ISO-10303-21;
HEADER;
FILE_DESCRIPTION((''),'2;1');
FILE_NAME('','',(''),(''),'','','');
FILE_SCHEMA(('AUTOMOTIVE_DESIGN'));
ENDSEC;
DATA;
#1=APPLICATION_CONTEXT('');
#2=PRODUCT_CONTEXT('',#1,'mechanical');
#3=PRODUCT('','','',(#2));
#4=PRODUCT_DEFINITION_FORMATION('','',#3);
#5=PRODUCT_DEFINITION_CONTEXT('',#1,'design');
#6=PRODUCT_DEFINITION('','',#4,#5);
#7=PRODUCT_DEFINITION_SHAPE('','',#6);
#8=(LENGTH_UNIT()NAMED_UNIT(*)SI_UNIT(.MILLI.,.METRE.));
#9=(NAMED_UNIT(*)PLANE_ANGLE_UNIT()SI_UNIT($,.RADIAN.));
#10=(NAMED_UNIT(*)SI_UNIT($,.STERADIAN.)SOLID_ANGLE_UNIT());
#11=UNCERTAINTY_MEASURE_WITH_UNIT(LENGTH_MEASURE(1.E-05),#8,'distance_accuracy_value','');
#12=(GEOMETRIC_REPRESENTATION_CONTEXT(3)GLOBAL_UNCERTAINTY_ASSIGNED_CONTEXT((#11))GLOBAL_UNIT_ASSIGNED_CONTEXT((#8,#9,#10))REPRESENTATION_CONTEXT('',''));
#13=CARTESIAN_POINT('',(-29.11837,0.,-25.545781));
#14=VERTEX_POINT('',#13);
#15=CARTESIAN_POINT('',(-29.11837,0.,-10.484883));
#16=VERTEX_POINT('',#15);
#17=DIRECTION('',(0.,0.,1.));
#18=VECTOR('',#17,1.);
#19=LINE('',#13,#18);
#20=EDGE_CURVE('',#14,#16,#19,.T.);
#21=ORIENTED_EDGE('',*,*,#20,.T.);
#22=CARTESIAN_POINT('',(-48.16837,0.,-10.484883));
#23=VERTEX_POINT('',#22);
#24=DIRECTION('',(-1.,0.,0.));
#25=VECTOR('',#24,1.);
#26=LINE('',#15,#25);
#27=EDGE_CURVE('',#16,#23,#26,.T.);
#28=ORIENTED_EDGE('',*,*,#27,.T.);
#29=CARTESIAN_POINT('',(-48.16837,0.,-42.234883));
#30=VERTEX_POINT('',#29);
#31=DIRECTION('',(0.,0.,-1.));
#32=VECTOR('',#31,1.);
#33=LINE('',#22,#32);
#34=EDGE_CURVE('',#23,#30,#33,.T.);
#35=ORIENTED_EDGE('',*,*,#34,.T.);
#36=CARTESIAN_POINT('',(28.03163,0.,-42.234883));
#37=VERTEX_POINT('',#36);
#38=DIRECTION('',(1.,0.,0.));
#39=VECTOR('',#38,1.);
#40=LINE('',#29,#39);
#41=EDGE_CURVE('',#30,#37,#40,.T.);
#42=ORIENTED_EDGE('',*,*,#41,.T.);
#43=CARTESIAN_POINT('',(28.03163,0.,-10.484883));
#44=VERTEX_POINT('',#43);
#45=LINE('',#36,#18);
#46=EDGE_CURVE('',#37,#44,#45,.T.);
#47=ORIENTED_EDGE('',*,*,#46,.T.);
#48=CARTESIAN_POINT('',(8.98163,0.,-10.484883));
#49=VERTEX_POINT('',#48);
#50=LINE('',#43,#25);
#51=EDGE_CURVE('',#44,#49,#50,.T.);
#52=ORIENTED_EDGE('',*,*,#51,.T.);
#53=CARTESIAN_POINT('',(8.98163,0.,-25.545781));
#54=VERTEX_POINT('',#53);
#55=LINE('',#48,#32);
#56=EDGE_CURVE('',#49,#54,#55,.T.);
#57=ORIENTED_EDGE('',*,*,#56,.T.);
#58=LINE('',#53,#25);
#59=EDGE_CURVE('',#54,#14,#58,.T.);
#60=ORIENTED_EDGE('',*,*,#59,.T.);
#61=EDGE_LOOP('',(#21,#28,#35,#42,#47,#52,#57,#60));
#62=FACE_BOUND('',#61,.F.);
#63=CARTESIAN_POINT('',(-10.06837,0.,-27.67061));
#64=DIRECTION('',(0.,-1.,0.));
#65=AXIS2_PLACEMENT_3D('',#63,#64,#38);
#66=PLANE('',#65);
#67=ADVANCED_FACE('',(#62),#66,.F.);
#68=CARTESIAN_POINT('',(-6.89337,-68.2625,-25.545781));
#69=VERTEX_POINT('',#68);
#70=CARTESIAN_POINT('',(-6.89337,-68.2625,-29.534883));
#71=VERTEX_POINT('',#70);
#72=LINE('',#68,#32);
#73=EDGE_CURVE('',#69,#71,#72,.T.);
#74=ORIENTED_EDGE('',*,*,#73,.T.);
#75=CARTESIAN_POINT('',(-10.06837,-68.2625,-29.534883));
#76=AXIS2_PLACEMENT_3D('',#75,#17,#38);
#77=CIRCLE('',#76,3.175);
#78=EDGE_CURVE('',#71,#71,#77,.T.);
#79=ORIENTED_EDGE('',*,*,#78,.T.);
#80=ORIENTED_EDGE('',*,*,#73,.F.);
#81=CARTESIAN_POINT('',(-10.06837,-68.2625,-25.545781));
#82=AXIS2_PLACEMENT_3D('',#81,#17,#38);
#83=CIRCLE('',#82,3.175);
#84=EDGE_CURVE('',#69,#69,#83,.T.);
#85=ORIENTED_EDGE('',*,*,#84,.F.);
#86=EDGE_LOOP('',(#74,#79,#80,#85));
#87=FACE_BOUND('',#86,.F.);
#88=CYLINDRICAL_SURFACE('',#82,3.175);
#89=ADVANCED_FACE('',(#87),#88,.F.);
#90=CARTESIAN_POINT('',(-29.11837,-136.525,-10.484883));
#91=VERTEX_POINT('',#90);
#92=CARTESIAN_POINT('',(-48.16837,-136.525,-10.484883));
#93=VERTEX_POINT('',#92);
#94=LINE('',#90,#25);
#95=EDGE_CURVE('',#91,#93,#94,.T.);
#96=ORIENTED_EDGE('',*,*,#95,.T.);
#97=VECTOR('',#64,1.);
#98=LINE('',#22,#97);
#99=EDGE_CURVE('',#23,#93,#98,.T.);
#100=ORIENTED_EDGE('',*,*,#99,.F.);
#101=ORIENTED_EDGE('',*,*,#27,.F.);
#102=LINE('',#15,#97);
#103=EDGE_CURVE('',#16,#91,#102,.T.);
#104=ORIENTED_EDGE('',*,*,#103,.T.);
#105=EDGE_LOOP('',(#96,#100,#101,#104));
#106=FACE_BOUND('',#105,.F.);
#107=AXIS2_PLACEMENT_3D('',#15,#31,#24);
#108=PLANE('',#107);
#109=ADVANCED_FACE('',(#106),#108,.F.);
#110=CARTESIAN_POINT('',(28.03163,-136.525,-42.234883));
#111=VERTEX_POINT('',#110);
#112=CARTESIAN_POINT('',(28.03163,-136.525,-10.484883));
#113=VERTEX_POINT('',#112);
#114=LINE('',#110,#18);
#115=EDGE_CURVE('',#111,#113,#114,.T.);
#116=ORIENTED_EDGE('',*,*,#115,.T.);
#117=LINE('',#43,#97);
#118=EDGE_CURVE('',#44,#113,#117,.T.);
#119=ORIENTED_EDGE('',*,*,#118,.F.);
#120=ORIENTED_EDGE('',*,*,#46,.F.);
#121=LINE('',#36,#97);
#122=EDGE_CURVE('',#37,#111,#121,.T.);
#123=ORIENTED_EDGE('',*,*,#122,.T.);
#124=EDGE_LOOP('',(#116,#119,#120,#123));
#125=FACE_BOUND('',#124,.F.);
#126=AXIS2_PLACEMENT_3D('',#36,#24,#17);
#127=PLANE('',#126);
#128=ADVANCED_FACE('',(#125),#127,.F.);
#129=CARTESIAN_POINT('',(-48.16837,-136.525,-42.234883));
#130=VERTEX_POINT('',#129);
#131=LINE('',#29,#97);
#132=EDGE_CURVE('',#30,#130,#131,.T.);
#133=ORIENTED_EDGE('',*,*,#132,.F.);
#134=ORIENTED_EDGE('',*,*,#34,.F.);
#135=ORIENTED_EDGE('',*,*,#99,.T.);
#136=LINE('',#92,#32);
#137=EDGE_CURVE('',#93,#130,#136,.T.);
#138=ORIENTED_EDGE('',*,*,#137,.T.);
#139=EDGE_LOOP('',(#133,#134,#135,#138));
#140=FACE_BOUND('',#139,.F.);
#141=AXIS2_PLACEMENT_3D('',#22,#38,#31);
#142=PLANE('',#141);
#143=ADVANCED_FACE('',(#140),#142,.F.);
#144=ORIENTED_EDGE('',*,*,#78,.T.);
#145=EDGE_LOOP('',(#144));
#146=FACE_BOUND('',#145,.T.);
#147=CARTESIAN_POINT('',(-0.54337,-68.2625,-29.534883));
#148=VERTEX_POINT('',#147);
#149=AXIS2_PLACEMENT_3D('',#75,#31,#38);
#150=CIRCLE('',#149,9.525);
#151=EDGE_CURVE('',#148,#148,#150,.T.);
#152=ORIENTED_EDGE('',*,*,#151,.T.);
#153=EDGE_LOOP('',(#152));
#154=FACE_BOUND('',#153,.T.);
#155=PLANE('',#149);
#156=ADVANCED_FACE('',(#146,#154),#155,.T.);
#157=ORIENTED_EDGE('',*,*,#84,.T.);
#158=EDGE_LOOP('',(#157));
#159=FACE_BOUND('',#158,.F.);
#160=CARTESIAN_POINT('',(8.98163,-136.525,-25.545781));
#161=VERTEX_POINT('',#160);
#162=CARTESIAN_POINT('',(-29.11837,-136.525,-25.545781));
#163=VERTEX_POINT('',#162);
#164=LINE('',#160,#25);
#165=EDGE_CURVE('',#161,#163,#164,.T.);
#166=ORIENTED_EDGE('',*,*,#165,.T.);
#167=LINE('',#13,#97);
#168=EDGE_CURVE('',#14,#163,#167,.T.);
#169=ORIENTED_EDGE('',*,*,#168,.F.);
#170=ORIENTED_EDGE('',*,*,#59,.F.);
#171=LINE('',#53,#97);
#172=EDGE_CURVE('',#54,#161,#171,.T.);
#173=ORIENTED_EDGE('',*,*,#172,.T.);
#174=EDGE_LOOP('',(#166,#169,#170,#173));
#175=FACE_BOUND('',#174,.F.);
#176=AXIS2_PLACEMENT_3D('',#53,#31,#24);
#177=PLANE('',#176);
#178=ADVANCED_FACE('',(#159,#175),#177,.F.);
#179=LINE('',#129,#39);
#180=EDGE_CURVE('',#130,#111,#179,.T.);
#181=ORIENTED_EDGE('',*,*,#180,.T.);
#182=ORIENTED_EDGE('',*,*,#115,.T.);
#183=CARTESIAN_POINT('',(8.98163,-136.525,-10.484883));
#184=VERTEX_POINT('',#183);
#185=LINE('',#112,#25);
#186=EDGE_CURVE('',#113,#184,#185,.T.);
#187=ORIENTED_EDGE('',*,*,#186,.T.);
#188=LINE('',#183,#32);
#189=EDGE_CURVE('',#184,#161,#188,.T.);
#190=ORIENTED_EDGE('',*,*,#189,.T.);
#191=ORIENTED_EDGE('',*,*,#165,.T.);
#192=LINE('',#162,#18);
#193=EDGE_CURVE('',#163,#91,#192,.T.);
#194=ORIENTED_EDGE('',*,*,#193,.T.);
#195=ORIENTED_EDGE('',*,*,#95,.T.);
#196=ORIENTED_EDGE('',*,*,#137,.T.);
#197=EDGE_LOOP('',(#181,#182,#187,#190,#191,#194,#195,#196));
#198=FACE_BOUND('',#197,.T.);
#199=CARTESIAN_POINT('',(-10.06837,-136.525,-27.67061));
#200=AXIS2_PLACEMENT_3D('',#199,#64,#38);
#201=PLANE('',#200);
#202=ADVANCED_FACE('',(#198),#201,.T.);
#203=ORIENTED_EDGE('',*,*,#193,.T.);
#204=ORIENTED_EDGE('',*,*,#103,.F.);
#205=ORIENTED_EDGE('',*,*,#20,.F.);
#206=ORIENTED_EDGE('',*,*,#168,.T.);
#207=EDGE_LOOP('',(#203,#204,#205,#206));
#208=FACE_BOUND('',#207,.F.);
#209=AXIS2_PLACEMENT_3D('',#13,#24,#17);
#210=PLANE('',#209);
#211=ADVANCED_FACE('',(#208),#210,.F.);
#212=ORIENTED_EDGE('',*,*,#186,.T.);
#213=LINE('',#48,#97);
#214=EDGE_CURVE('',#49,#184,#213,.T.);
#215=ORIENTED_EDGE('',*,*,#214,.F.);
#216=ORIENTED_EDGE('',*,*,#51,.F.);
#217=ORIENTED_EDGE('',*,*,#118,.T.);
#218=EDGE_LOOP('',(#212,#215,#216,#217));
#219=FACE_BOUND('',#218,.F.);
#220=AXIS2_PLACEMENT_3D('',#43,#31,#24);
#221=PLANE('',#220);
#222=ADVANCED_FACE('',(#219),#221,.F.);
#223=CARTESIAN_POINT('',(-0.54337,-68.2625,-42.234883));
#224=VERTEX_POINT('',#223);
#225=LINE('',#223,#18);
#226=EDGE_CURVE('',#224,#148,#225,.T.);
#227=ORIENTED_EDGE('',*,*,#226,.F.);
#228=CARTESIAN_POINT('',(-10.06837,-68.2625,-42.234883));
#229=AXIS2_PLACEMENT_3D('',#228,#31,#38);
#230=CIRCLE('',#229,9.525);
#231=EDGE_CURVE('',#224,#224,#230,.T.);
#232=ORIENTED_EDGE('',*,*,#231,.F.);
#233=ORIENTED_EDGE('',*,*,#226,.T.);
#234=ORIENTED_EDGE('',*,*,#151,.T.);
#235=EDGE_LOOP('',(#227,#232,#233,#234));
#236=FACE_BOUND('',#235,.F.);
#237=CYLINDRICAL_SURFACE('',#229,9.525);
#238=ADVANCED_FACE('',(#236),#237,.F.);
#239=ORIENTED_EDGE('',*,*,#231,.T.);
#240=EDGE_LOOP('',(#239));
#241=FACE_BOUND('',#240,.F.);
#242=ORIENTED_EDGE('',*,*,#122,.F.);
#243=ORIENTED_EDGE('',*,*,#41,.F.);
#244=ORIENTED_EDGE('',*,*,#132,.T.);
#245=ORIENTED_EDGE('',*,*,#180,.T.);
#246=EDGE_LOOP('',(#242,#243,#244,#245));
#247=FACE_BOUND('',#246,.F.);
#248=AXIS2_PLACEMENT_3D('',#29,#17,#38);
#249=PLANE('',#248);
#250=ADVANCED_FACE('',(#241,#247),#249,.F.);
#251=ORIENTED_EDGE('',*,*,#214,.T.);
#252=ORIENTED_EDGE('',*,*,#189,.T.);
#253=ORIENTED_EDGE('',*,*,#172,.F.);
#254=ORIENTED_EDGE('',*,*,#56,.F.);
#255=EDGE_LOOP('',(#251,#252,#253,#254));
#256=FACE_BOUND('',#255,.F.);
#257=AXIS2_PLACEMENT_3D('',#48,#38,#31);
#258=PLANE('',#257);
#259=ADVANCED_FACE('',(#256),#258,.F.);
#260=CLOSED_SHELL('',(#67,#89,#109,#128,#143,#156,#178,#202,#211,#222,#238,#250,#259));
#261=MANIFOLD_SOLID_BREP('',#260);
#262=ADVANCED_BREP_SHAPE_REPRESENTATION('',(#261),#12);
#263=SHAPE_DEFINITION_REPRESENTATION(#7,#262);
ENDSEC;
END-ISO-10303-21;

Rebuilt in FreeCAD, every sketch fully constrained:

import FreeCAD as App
import Part
import Sketcher
Q = App.Units.Quantity

doc = App.newDocument("Part")
body = doc.addObject("PartDesign::Body", "Body")

sketch1 = doc.addObject("Sketcher::SketchObject", "Sketch")
body.addObject(sketch1)
sketch1.AttachmentSupport = (doc.XZ_Plane, [""])
sketch1.MapMode = "FlatFace"
sketch1.addGeometry([
    Part.LineSegment(App.Vector(-48.16837, -10.484883, 0), App.Vector(-48.16837, -42.234883, 0)),
    Part.LineSegment(App.Vector(-48.16837, -42.234883, 0), App.Vector(28.03163, -42.234883, 0)),
    Part.LineSegment(App.Vector(28.03163, -42.234883, 0), App.Vector(28.03163, -10.484883, 0)),
    Part.LineSegment(App.Vector(28.03163, -10.484883, 0), App.Vector(8.98163, -10.484883, 0)),
    Part.LineSegment(App.Vector(8.98163, -10.484883, 0), App.Vector(8.98163, -25.545781, 0)),
    Part.LineSegment(App.Vector(8.98163, -25.545781, 0), App.Vector(-29.11837, -25.545781, 0)),
    Part.LineSegment(App.Vector(-29.11837, -25.545781, 0), App.Vector(-29.11837, -10.484883, 0)),
    Part.LineSegment(App.Vector(-29.11837, -10.484883, 0), App.Vector(-48.16837, -10.484883, 0)),
], False)
sketch1.addConstraint([
    Sketcher.Constraint("Coincident", 0, 2, 1, 1),
    Sketcher.Constraint("Coincident", 1, 2, 2, 1),
    Sketcher.Constraint("Coincident", 2, 2, 3, 1),
    Sketcher.Constraint("Coincident", 3, 2, 4, 1),
    Sketcher.Constraint("Coincident", 4, 2, 5, 1),
    Sketcher.Constraint("Coincident", 5, 2, 6, 1),
    Sketcher.Constraint("Coincident", 6, 2, 7, 1),
    Sketcher.Constraint("Coincident", 7, 2, 0, 1),
    Sketcher.Constraint("Vertical", 0),
    Sketcher.Constraint("Horizontal", 1),
    Sketcher.Constraint("Vertical", 2),
    Sketcher.Constraint("Horizontal", 3),
    Sketcher.Constraint("Vertical", 4),
    Sketcher.Constraint("Horizontal", 5),
    Sketcher.Constraint("Vertical", 6),
    Sketcher.Constraint("Horizontal", 7),
    Sketcher.Constraint("Horizontal", 3, 2, 6, 2),
    Sketcher.Constraint("Equal", 3, 7),
    Sketcher.Constraint("DistanceX", 1, 1, 1, 2, Q("3 in")),
    Sketcher.Constraint("DistanceX", 5, 2, 5, 1, Q("1.5 in")),
    Sketcher.Constraint("DistanceY", 0, 2, 0, 1, Q("1.25 in")),
    Sketcher.Constraint("DistanceY", 4, 2, 4, 1, Q("15.060898 mm")),
    Sketcher.Constraint("DistanceX", 0, 2, -1, 1, Q("48.16837 mm")),
    Sketcher.Constraint("DistanceY", 4, 2, -1, 1, Q("25.545781 mm")),
])
pad1 = doc.addObject("PartDesign::Pad", "Pad")
body.addObject(pad1)
pad1.Profile = sketch1
pad1.Length = Q("5.375 in")

sketch2 = doc.addObject("Sketcher::SketchObject", "Sketch001")
body.addObject(sketch2)
sketch2.AttachmentSupport = (doc.XY_Plane, [""])
sketch2.MapMode = "FlatFace"
sketch2.AttachmentOffset = App.Placement(App.Vector(0, 0, -25.545781), App.Rotation())
sketch2.addGeometry(Part.Circle(App.Vector(-10.06837, -68.2625, 0), App.Vector(0, 0, 1), 3.175), False)
sketch2.addConstraint([
    Sketcher.Constraint("Diameter", 0, Q("0.25 in")),
    Sketcher.Constraint("DistanceY", 0, 3, -1, 1, Q("2.6875 in")),
    Sketcher.Constraint("DistanceX", 0, 3, -1, 1, Q("10.06837 mm")),
])
pad2 = doc.addObject("PartDesign::Pad", "Pad001")
body.addObject(pad2)
pad2.Profile = sketch2
pad2.Length = Q("0.25 in")
pad2.Reversed = True

sketch3 = doc.addObject("Sketcher::SketchObject", "Sketch002")
body.addObject(sketch3)
sketch3.AttachmentSupport = (doc.XY_Plane, [""])
sketch3.MapMode = "FlatFace"
sketch3.AttachmentOffset = App.Placement(App.Vector(0, 0, -42.234883), App.Rotation())
sketch3.addGeometry(Part.Circle(App.Vector(-10.06837, -68.2625, 0), App.Vector(0, 0, 1), 9.525), False)
sketch3.addConstraint([
    Sketcher.Constraint("Diameter", 0, Q("0.75 in")),
    Sketcher.Constraint("DistanceY", 0, 3, -1, 1, Q("2.6875 in")),
    Sketcher.Constraint("DistanceX", 0, 3, -1, 1, Q("10.06837 mm")),
])
pocket1 = doc.addObject("PartDesign::Pocket", "Pocket")
body.addObject(pocket1)
pocket1.Profile = sketch3
pocket1.Length = Q("0.5 in")
pocket1.Reversed = True

sketch4 = doc.addObject("Sketcher::SketchObject", "Sketch003")
body.addObject(sketch4)
sketch4.AttachmentSupport = (doc.XY_Plane, [""])
sketch4.MapMode = "FlatFace"
sketch4.AttachmentOffset = App.Placement(App.Vector(0, 0, -25.545781), App.Rotation())
sketch4.addGeometry(Part.Circle(App.Vector(-10.06837, -68.2625, 0), App.Vector(0, 0, 1), 3.175), False)
sketch4.addConstraint([
    Sketcher.Constraint("Diameter", 0, Q("0.25 in")),
    Sketcher.Constraint("DistanceY", 0, 3, -1, 1, Q("2.6875 in")),
    Sketcher.Constraint("DistanceX", 0, 3, -1, 1, Q("10.06837 mm")),
])
pocket2 = doc.addObject("PartDesign::Pocket", "Pocket001")
body.addObject(pocket2)
pocket2.Profile = sketch4
pocket2.Length = Q("1 in")

doc.recompute()
